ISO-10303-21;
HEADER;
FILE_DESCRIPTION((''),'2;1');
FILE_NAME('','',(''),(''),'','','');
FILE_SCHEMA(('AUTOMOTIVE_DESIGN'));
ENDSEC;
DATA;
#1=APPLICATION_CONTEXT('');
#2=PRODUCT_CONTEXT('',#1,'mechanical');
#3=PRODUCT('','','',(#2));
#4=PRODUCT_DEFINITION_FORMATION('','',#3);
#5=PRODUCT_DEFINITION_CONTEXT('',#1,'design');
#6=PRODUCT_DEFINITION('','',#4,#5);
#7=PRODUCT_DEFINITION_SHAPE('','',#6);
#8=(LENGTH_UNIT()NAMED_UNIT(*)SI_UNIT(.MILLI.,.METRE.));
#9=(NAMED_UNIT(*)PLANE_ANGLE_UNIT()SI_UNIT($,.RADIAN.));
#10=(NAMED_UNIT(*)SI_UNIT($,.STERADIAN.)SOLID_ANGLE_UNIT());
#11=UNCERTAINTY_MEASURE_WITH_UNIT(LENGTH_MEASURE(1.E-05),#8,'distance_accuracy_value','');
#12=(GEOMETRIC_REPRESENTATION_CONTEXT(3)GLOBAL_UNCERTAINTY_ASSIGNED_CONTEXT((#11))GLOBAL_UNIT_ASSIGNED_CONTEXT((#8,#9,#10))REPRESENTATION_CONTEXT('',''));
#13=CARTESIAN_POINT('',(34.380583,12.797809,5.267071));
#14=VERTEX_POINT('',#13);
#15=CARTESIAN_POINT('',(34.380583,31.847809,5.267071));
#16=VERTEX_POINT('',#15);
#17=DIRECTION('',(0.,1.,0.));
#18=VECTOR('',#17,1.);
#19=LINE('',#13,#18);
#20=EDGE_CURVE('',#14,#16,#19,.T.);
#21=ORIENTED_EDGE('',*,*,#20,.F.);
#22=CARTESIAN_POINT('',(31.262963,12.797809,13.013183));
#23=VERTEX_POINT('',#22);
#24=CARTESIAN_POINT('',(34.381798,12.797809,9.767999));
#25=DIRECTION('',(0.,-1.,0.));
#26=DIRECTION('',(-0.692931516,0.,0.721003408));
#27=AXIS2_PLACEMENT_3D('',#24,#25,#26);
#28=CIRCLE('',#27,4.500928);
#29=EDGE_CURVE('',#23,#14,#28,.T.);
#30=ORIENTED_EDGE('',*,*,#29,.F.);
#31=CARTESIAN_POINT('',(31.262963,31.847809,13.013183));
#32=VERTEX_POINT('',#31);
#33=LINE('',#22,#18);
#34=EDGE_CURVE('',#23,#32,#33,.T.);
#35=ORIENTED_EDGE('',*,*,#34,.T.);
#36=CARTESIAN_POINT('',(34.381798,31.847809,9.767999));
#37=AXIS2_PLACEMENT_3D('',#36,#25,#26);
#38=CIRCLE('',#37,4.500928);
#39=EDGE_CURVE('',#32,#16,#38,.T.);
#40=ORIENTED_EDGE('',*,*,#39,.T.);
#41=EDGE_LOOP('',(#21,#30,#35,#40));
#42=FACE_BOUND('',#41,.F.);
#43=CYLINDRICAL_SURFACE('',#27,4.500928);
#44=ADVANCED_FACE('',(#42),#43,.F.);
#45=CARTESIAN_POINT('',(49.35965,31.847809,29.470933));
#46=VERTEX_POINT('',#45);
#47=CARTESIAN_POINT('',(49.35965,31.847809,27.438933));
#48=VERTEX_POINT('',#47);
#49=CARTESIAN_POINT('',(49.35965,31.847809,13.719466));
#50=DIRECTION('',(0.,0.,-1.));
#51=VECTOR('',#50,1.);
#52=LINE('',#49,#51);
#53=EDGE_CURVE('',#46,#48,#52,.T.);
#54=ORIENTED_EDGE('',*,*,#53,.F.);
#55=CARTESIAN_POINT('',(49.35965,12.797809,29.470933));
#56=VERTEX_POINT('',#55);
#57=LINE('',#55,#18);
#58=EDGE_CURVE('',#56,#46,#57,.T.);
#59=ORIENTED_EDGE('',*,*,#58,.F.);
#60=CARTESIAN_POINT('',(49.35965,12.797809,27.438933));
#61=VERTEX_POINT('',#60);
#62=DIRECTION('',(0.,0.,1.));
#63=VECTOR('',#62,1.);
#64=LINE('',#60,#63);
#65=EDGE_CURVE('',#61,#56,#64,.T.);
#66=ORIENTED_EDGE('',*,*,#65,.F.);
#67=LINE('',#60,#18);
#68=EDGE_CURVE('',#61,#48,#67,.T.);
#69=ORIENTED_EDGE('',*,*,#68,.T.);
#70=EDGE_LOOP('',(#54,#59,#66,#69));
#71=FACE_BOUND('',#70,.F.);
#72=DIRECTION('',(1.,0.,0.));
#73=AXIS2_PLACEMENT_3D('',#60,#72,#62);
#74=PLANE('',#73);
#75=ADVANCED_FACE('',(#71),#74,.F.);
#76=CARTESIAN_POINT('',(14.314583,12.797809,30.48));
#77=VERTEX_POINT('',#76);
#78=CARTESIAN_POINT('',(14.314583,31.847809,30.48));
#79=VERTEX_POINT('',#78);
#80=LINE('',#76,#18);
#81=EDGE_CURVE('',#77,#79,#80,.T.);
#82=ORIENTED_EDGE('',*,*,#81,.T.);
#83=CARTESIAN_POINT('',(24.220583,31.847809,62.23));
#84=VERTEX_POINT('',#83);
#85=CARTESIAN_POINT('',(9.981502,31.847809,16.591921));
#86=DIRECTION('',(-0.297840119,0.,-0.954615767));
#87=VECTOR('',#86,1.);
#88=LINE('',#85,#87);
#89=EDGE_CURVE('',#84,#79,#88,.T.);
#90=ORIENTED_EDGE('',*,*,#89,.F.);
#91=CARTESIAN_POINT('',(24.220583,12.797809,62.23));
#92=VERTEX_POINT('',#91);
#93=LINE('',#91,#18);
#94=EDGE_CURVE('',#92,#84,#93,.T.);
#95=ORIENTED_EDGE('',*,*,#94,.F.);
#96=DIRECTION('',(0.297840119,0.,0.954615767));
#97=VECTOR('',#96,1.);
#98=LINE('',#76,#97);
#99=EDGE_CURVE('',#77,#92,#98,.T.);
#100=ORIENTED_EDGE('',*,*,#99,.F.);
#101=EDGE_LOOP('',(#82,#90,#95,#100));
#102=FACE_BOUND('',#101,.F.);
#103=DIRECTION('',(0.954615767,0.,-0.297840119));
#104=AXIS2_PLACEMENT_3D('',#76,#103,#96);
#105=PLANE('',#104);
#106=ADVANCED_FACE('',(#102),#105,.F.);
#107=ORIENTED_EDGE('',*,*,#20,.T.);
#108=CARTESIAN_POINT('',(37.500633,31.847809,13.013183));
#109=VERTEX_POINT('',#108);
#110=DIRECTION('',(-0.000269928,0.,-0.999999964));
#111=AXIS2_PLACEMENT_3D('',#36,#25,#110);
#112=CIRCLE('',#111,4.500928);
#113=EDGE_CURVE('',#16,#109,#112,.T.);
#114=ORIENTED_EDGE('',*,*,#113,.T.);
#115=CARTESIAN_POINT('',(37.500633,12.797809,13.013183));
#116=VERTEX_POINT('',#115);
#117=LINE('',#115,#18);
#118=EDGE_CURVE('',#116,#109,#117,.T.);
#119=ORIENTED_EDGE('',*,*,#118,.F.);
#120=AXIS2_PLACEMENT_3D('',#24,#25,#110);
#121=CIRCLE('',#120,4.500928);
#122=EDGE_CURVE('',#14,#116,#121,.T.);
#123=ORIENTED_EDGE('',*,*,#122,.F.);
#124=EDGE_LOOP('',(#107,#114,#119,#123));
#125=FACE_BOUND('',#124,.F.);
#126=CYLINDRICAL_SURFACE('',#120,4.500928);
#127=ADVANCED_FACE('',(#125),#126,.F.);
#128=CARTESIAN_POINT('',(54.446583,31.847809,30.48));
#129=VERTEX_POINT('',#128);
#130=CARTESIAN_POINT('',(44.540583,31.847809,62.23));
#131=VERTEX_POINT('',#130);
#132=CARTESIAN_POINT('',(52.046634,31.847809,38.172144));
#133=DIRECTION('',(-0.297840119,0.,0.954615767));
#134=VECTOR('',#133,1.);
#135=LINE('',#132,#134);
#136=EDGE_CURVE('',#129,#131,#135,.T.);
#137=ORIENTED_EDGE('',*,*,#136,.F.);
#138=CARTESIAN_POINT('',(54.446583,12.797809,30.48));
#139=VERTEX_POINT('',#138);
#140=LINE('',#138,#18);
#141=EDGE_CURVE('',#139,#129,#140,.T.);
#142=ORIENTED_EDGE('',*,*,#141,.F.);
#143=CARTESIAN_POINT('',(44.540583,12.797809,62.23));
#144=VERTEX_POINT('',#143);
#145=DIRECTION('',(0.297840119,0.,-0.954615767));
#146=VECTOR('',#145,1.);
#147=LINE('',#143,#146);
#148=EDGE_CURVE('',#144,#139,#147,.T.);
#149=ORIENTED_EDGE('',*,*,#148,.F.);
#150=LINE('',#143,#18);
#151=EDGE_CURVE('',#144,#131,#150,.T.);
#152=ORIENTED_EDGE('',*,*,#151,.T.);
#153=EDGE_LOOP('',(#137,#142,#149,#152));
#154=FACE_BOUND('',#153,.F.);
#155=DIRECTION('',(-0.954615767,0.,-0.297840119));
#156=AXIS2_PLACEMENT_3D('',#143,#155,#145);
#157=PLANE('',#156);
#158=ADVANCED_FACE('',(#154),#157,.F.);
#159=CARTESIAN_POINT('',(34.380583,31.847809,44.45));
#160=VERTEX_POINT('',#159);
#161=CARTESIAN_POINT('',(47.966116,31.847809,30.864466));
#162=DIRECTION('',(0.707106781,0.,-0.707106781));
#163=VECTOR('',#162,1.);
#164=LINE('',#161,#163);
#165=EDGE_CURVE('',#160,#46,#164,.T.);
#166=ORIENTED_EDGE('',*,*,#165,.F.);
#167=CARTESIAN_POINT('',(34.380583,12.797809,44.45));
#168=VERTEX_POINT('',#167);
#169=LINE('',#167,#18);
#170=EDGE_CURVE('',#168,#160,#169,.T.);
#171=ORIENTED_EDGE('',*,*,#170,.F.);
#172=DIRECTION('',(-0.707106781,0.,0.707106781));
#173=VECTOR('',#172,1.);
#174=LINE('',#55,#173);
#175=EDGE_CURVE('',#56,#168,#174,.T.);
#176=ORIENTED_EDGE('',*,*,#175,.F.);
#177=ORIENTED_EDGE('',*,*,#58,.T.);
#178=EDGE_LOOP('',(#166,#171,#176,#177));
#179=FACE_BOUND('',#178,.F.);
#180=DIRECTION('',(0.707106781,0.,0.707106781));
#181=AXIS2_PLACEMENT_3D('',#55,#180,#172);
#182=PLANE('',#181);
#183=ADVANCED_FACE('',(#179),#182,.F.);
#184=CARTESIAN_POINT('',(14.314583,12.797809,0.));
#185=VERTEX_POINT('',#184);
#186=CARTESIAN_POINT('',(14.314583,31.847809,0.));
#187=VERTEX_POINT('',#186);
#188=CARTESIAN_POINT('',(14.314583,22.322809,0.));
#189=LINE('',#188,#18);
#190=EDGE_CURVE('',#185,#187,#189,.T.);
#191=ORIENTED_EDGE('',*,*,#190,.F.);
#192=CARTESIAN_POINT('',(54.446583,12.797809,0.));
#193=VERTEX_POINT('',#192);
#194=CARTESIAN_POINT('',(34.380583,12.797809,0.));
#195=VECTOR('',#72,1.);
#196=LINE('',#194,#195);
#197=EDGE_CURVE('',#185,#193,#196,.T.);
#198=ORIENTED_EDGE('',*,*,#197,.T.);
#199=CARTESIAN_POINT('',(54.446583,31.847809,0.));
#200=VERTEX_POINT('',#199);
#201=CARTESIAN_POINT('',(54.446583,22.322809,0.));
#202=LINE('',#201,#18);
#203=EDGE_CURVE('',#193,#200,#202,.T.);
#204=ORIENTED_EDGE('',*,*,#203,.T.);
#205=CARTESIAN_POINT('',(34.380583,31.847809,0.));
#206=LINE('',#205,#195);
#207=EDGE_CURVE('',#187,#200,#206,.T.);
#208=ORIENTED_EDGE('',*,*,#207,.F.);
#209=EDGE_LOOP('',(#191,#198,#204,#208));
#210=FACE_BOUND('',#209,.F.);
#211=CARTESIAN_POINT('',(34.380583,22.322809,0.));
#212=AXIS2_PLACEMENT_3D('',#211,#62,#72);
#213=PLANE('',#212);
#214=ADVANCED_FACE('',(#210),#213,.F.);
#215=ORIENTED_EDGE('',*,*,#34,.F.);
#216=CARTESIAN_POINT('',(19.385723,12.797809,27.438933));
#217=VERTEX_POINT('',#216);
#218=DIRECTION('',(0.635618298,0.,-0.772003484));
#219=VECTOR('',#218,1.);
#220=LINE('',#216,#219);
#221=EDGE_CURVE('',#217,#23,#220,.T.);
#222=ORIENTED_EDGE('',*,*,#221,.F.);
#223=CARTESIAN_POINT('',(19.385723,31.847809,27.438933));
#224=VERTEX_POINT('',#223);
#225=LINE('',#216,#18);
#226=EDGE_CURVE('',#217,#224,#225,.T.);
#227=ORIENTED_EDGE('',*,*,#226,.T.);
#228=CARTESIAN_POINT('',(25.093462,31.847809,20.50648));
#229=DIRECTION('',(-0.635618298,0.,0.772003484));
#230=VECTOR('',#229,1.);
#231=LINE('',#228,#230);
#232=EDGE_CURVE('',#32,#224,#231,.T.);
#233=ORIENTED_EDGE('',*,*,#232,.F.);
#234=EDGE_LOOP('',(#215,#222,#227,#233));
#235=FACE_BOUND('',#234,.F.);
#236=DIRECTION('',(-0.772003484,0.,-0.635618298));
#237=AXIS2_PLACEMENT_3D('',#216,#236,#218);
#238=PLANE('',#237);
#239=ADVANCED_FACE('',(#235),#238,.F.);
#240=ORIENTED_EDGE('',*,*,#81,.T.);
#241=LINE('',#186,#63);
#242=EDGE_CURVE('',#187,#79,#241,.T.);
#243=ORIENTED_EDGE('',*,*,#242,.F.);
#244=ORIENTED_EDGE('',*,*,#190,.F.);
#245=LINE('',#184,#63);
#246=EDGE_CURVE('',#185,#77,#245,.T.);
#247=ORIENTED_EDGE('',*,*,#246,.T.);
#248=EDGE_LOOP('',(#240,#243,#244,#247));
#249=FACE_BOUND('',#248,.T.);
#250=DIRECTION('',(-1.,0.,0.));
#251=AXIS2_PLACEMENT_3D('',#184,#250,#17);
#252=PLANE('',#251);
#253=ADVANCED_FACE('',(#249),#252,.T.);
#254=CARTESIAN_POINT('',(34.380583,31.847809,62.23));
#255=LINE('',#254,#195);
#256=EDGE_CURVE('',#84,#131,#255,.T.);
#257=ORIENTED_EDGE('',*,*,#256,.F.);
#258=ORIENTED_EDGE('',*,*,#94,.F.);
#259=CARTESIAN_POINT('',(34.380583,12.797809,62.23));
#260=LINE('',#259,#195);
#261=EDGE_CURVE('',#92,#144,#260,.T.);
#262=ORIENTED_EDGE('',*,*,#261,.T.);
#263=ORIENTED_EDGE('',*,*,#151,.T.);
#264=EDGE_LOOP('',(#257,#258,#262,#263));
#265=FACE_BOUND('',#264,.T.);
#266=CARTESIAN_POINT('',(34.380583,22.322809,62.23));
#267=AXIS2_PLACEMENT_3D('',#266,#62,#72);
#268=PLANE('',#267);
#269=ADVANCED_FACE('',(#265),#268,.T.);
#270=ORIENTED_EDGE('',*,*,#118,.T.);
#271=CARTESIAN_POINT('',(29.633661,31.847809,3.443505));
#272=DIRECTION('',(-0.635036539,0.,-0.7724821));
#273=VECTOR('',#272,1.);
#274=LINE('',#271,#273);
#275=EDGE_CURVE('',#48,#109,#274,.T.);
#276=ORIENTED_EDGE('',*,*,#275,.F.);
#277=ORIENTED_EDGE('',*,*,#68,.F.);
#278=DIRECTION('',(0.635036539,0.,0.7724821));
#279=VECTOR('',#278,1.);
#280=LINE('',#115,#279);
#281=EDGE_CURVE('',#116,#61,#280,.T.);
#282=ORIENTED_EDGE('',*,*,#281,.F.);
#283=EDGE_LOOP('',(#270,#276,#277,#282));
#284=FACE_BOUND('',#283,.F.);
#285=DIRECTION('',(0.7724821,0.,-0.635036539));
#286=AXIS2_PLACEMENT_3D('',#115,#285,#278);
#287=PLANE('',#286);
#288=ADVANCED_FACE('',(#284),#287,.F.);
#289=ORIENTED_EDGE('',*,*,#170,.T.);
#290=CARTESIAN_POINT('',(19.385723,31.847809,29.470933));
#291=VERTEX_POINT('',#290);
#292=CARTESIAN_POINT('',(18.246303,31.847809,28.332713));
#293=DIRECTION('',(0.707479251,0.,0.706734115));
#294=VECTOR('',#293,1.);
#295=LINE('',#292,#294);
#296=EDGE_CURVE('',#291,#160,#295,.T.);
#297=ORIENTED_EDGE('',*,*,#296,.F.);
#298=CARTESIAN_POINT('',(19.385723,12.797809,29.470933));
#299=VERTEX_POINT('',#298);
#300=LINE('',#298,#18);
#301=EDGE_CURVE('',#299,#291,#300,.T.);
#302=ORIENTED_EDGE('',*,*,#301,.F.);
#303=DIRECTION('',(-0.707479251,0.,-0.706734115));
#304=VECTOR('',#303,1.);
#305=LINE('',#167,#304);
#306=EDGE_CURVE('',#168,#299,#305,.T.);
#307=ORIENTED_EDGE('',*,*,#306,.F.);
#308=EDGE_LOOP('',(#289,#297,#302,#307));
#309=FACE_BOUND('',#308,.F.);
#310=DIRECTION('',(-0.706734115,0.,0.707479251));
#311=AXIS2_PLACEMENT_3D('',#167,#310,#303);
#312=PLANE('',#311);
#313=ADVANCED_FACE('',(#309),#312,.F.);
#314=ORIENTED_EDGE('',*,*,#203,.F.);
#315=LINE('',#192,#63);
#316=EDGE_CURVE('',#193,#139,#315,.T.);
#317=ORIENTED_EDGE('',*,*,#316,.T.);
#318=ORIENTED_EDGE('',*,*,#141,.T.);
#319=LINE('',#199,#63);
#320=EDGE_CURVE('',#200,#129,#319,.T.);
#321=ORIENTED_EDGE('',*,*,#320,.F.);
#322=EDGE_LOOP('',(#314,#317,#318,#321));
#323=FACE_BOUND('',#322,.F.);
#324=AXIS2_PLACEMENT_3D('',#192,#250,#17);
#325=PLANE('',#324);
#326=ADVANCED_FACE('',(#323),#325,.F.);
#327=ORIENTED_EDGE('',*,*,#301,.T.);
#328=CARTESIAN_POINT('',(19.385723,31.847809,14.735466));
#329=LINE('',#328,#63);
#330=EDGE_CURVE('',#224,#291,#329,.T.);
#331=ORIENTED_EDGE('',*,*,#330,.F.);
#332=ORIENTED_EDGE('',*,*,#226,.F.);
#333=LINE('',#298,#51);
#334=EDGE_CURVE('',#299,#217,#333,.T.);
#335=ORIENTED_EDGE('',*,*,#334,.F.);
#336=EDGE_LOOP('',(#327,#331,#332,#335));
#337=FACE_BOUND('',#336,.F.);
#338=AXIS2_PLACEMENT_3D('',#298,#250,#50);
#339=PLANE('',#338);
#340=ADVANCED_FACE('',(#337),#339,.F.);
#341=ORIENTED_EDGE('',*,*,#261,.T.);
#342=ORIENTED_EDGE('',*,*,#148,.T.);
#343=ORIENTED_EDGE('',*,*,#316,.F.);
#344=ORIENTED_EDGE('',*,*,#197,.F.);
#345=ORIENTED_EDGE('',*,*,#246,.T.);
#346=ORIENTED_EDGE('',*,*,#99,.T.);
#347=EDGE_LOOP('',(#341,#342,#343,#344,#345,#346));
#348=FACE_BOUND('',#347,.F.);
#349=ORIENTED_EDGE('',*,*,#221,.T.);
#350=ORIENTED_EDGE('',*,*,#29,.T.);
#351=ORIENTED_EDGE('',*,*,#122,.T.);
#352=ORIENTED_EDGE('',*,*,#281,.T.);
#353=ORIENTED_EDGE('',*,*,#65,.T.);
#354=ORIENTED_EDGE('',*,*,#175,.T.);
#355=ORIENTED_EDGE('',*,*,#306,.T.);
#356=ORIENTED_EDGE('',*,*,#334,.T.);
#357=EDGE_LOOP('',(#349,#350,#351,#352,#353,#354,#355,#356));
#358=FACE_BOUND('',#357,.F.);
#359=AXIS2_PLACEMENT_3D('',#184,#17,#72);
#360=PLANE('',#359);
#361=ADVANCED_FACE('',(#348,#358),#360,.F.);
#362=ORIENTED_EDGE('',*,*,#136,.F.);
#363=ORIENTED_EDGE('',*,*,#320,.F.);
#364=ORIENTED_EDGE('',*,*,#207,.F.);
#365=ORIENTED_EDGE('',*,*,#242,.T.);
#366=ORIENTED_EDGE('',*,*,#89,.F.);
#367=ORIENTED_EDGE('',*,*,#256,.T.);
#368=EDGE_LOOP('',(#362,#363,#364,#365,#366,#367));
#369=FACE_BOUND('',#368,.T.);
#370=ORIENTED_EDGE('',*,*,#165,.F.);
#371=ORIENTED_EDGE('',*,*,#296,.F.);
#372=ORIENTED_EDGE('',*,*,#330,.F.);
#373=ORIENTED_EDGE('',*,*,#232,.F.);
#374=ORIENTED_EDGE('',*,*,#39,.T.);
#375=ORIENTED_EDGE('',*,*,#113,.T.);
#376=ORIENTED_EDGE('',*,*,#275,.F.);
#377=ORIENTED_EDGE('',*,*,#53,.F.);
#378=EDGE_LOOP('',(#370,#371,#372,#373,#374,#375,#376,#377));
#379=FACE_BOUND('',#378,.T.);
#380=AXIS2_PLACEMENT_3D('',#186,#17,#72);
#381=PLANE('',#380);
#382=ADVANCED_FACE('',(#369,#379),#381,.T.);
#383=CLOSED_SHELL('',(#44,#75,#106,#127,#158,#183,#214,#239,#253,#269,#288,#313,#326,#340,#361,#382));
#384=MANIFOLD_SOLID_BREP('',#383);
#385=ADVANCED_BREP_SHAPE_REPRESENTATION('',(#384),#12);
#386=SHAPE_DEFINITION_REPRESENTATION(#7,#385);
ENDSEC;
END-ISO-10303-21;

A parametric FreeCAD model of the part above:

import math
import FreeCAD as App
import Part
import Sketcher
Q = App.Units.Quantity

doc = App.newDocument("Part")
params = doc.addObject("Spreadsheet::Sheet", "Params")
for row, (alias, value) in enumerate([
    ("sketch1_width", "1.58 in"),
    ("sketch1_height", "0.75 in"),
    ("pad1_length", "2.45 in"),
    ("sketch2_height", "0.08 in"),
    ("sketch2_length", "0.834 in"),
    ("pocket1_length", "1 in"),
    ("sketch3_width", "0.39 in"),
    ("sketch3_height", "1.25 in"),
    ("pocket2_length", "1 in"),
], start=1):
    params.set(f"A{row}", alias)
    params.set(f"B{row}", "=" + value)
    params.setAlias(f"B{row}", alias)

body = doc.addObject("PartDesign::Body", "Body")

# Sketch on XY plane
sketch1 = doc.addObject("Sketcher::SketchObject", "Sketch")
body.addObject(sketch1)
sketch1.AttachmentSupport = (doc.XY_Plane, [""])
sketch1.MapMode = "FlatFace"
sketch1.addGeometry([
    Part.LineSegment(App.Vector(14, 32, 0), App.Vector(14, 13, 0)),
    Part.LineSegment(App.Vector(14, 13, 0), App.Vector(54, 13, 0)),
    Part.LineSegment(App.Vector(54, 13, 0), App.Vector(54, 32, 0)),
    Part.LineSegment(App.Vector(54, 32, 0), App.Vector(14, 32, 0)),
], False)
sketch1.addConstraint([
    Sketcher.Constraint("Coincident", 0, 2, 1, 1),
    Sketcher.Constraint("Coincident", 1, 2, 2, 1),
    Sketcher.Constraint("Coincident", 2, 2, 3, 1),
    Sketcher.Constraint("Coincident", 3, 2, 0, 1),
    Sketcher.Constraint("Vertical", 0),
    Sketcher.Constraint("Horizontal", 1),
    Sketcher.Constraint("Vertical", 2),
    Sketcher.Constraint("Horizontal", 3),
    Sketcher.Constraint("DistanceX", 1, 1, 1, 2, Q("1.58 in")),
    Sketcher.Constraint("DistanceY", 0, 2, 0, 1, Q("0.75 in")),
    Sketcher.Constraint("DistanceY", -1, 1, 0, 2, Q("12.797809 mm")),
    Sketcher.Constraint("DistanceX", -1, 1, 0, 2, Q("14.314583 mm")),
])
sketch1.setExpression("Constraints[8]", "Params.sketch1_width")
sketch1.setExpression("Constraints[9]", "Params.sketch1_height")
pad1 = doc.addObject("PartDesign::Pad", "Pad")
body.addObject(pad1)
pad1.Profile = sketch1
pad1.setExpression("Length", "Params.pad1_length")

# Sketch on XZ plane
sketch2 = doc.addObject("Sketcher::SketchObject", "Sketch001")
body.addObject(sketch2)
sketch2.AttachmentSupport = (doc.XZ_Plane, [""])
sketch2.MapMode = "FlatFace"
sketch2.AttachmentOffset = App.Placement(App.Vector(0, 0, -12.797809), App.Rotation())
sketch2.addGeometry([
    Part.LineSegment(App.Vector(49.4, 29.5, 0), App.Vector(34.4, 44.5, 0)),  # 0
    Part.LineSegment(App.Vector(34.4, 44.5, 0), App.Vector(19.4, 29.5, 0)),  # 1
    Part.LineSegment(App.Vector(19.4, 29.5, 0), App.Vector(19.4, 27.4, 0)),  # 2
    Part.LineSegment(App.Vector(19.4, 27.4, 0), App.Vector(31.3, 13, 0)),  # 3
    Part.ArcOfCircle(Part.Circle(App.Vector(34.4, 9.8, 0), App.Vector(0, 0, 1), 4.5), math.radians(134), math.radians(270)),  # 4
    Part.ArcOfCircle(Part.Circle(App.Vector(34.4, 9.8, 0), App.Vector(0, 0, 1), 4.5), math.radians(-90), math.radians(46)),  # 5
    Part.LineSegment(App.Vector(37.5, 13, 0), App.Vector(49.4, 27.4, 0)),  # 6
    Part.LineSegment(App.Vector(49.4, 27.4, 0), App.Vector(49.4, 29.5, 0)),  # 7
], False)
sketch2.addConstraint([
    Sketcher.Constraint("Coincident", 0, 2, 1, 1),
    Sketcher.Constraint("Coincident", 1, 2, 2, 1),
    Sketcher.Constraint("Coincident", 2, 2, 3, 1),
    Sketcher.Constraint("Coincident", 3, 2, 4, 1),
    Sketcher.Constraint("Tangent", 4, 2, 5, 1),
    Sketcher.Constraint("Coincident", 5, 2, 6, 1),
    Sketcher.Constraint("Coincident", 6, 2, 7, 1),
    Sketcher.Constraint("Coincident", 7, 2, 0, 1),
    Sketcher.Constraint("Vertical", 2),
    Sketcher.Constraint("Vertical", 7),
    Sketcher.Constraint("Equal", 4, 5),
    Sketcher.Constraint("Horizontal", 3, 2, 5, 2),
    Sketcher.Constraint("Horizontal", 2, 2, 6, 2),
    Sketcher.Constraint("Horizontal", 1, 2, 7, 2),
    Sketcher.Constraint("Vertical", 0, 2, 4, 2),
    Sketcher.Constraint("Angle", 0, Q("135 deg")),
    Sketcher.Constraint("DistanceY", 2, 2, 2, 1, Q("0.08 in")),
    Sketcher.Constraint("DistanceY", -1, 1, 0, 2, Q("1.75 in")),
    Sketcher.Constraint("Distance", 0, Q("0.834 in")),
    Sketcher.Constraint("Radius", 4, Q("4.500928 mm")),
    Sketcher.Constraint("DistanceY", -1, 1, 4, 3, Q("9.767999 mm")),
    Sketcher.Constraint("Distance", 1, Q("21.19477 mm")),
    Sketcher.Constraint("Distance", 3, Q("18.68612 mm")),
    Sketcher.Constraint("DistanceX", -1, 1, 6, 2, Q("49.35965 mm")),
    Sketcher.Constraint("DistanceX", 2, 2, 3, 2, Q("11.87724 mm")),
])
sketch2.setExpression("Constraints[16]", "Params.sketch2_height")
sketch2.setExpression("Constraints[18]", "Params.sketch2_length")
pocket1 = doc.addObject("PartDesign::Pocket", "Pocket")
body.addObject(pocket1)
pocket1.Profile = sketch2
pocket1.setExpression("Length", "Params.pocket1_length")

# Sketch on XZ plane
sketch3 = doc.addObject("Sketcher::SketchObject", "Sketch002")
body.addObject(sketch3)
sketch3.AttachmentSupport = (doc.XZ_Plane, [""])
sketch3.MapMode = "FlatFace"
sketch3.AttachmentOffset = App.Placement(App.Vector(0, 0, -12.797809), App.Rotation())
sketch3.addGeometry([
    Part.LineSegment(App.Vector(14, 62, 0), App.Vector(14, 30, 0)),  # 0
    Part.LineSegment(App.Vector(14, 30, 0), App.Vector(24, 62, 0)),  # 1
    Part.LineSegment(App.Vector(24, 62, 0), App.Vector(14, 62, 0)),  # 2
    Part.LineSegment(App.Vector(54, 62, 0), App.Vector(45, 62, 0)),  # 3
    Part.LineSegment(App.Vector(45, 62, 0), App.Vector(54, 30, 0)),  # 4
    Part.LineSegment(App.Vector(54, 30, 0), App.Vector(54, 62, 0)),  # 5
], False)
sketch3.addConstraint([
    Sketcher.Constraint("Coincident", 0, 2, 1, 1),
    Sketcher.Constraint("Coincident", 1, 2, 2, 1),
    Sketcher.Constraint("Coincident", 2, 2, 0, 1),
    Sketcher.Constraint("Coincident", 3, 2, 4, 1),
    Sketcher.Constraint("Coincident", 4, 2, 5, 1),
    Sketcher.Constraint("Coincident", 5, 2, 3, 1),
    Sketcher.Constraint("Vertical", 0),
    Sketcher.Constraint("Horizontal", 2),
    Sketcher.Constraint("Horizontal", 3),
    Sketcher.Constraint("Vertical", 5),
    Sketcher.Constraint("Horizontal", 2, 2, 3, 2),
    Sketcher.Constraint("Horizontal", 0, 2, 4, 2),
    Sketcher.Constraint("Equal", 2, 3),
    Sketcher.Constraint("DistanceX", 2, 2, 2, 1, Q("0.39 in")),
    Sketcher.Constraint("DistanceY", 0, 2, 0, 1, Q("1.25 in")),
    Sketcher.Constraint("DistanceY", -1, 1, 0, 2, Q("1.2 in")),
    Sketcher.Constraint("DistanceX", 1, 2, 3, 2, Q("0.8 in")),
    Sketcher.Constraint("DistanceX", -1, 1, 0, 2, Q("14.314583 mm")),
])
sketch3.setExpression("Constraints[13]", "Params.sketch3_width")
sketch3.setExpression("Constraints[14]", "Params.sketch3_height")
pocket2 = doc.addObject("PartDesign::Pocket", "Pocket001")
body.addObject(pocket2)
pocket2.Profile = sketch3
pocket2.setExpression("Length", "Params.pocket2_length")

doc.recompute()
